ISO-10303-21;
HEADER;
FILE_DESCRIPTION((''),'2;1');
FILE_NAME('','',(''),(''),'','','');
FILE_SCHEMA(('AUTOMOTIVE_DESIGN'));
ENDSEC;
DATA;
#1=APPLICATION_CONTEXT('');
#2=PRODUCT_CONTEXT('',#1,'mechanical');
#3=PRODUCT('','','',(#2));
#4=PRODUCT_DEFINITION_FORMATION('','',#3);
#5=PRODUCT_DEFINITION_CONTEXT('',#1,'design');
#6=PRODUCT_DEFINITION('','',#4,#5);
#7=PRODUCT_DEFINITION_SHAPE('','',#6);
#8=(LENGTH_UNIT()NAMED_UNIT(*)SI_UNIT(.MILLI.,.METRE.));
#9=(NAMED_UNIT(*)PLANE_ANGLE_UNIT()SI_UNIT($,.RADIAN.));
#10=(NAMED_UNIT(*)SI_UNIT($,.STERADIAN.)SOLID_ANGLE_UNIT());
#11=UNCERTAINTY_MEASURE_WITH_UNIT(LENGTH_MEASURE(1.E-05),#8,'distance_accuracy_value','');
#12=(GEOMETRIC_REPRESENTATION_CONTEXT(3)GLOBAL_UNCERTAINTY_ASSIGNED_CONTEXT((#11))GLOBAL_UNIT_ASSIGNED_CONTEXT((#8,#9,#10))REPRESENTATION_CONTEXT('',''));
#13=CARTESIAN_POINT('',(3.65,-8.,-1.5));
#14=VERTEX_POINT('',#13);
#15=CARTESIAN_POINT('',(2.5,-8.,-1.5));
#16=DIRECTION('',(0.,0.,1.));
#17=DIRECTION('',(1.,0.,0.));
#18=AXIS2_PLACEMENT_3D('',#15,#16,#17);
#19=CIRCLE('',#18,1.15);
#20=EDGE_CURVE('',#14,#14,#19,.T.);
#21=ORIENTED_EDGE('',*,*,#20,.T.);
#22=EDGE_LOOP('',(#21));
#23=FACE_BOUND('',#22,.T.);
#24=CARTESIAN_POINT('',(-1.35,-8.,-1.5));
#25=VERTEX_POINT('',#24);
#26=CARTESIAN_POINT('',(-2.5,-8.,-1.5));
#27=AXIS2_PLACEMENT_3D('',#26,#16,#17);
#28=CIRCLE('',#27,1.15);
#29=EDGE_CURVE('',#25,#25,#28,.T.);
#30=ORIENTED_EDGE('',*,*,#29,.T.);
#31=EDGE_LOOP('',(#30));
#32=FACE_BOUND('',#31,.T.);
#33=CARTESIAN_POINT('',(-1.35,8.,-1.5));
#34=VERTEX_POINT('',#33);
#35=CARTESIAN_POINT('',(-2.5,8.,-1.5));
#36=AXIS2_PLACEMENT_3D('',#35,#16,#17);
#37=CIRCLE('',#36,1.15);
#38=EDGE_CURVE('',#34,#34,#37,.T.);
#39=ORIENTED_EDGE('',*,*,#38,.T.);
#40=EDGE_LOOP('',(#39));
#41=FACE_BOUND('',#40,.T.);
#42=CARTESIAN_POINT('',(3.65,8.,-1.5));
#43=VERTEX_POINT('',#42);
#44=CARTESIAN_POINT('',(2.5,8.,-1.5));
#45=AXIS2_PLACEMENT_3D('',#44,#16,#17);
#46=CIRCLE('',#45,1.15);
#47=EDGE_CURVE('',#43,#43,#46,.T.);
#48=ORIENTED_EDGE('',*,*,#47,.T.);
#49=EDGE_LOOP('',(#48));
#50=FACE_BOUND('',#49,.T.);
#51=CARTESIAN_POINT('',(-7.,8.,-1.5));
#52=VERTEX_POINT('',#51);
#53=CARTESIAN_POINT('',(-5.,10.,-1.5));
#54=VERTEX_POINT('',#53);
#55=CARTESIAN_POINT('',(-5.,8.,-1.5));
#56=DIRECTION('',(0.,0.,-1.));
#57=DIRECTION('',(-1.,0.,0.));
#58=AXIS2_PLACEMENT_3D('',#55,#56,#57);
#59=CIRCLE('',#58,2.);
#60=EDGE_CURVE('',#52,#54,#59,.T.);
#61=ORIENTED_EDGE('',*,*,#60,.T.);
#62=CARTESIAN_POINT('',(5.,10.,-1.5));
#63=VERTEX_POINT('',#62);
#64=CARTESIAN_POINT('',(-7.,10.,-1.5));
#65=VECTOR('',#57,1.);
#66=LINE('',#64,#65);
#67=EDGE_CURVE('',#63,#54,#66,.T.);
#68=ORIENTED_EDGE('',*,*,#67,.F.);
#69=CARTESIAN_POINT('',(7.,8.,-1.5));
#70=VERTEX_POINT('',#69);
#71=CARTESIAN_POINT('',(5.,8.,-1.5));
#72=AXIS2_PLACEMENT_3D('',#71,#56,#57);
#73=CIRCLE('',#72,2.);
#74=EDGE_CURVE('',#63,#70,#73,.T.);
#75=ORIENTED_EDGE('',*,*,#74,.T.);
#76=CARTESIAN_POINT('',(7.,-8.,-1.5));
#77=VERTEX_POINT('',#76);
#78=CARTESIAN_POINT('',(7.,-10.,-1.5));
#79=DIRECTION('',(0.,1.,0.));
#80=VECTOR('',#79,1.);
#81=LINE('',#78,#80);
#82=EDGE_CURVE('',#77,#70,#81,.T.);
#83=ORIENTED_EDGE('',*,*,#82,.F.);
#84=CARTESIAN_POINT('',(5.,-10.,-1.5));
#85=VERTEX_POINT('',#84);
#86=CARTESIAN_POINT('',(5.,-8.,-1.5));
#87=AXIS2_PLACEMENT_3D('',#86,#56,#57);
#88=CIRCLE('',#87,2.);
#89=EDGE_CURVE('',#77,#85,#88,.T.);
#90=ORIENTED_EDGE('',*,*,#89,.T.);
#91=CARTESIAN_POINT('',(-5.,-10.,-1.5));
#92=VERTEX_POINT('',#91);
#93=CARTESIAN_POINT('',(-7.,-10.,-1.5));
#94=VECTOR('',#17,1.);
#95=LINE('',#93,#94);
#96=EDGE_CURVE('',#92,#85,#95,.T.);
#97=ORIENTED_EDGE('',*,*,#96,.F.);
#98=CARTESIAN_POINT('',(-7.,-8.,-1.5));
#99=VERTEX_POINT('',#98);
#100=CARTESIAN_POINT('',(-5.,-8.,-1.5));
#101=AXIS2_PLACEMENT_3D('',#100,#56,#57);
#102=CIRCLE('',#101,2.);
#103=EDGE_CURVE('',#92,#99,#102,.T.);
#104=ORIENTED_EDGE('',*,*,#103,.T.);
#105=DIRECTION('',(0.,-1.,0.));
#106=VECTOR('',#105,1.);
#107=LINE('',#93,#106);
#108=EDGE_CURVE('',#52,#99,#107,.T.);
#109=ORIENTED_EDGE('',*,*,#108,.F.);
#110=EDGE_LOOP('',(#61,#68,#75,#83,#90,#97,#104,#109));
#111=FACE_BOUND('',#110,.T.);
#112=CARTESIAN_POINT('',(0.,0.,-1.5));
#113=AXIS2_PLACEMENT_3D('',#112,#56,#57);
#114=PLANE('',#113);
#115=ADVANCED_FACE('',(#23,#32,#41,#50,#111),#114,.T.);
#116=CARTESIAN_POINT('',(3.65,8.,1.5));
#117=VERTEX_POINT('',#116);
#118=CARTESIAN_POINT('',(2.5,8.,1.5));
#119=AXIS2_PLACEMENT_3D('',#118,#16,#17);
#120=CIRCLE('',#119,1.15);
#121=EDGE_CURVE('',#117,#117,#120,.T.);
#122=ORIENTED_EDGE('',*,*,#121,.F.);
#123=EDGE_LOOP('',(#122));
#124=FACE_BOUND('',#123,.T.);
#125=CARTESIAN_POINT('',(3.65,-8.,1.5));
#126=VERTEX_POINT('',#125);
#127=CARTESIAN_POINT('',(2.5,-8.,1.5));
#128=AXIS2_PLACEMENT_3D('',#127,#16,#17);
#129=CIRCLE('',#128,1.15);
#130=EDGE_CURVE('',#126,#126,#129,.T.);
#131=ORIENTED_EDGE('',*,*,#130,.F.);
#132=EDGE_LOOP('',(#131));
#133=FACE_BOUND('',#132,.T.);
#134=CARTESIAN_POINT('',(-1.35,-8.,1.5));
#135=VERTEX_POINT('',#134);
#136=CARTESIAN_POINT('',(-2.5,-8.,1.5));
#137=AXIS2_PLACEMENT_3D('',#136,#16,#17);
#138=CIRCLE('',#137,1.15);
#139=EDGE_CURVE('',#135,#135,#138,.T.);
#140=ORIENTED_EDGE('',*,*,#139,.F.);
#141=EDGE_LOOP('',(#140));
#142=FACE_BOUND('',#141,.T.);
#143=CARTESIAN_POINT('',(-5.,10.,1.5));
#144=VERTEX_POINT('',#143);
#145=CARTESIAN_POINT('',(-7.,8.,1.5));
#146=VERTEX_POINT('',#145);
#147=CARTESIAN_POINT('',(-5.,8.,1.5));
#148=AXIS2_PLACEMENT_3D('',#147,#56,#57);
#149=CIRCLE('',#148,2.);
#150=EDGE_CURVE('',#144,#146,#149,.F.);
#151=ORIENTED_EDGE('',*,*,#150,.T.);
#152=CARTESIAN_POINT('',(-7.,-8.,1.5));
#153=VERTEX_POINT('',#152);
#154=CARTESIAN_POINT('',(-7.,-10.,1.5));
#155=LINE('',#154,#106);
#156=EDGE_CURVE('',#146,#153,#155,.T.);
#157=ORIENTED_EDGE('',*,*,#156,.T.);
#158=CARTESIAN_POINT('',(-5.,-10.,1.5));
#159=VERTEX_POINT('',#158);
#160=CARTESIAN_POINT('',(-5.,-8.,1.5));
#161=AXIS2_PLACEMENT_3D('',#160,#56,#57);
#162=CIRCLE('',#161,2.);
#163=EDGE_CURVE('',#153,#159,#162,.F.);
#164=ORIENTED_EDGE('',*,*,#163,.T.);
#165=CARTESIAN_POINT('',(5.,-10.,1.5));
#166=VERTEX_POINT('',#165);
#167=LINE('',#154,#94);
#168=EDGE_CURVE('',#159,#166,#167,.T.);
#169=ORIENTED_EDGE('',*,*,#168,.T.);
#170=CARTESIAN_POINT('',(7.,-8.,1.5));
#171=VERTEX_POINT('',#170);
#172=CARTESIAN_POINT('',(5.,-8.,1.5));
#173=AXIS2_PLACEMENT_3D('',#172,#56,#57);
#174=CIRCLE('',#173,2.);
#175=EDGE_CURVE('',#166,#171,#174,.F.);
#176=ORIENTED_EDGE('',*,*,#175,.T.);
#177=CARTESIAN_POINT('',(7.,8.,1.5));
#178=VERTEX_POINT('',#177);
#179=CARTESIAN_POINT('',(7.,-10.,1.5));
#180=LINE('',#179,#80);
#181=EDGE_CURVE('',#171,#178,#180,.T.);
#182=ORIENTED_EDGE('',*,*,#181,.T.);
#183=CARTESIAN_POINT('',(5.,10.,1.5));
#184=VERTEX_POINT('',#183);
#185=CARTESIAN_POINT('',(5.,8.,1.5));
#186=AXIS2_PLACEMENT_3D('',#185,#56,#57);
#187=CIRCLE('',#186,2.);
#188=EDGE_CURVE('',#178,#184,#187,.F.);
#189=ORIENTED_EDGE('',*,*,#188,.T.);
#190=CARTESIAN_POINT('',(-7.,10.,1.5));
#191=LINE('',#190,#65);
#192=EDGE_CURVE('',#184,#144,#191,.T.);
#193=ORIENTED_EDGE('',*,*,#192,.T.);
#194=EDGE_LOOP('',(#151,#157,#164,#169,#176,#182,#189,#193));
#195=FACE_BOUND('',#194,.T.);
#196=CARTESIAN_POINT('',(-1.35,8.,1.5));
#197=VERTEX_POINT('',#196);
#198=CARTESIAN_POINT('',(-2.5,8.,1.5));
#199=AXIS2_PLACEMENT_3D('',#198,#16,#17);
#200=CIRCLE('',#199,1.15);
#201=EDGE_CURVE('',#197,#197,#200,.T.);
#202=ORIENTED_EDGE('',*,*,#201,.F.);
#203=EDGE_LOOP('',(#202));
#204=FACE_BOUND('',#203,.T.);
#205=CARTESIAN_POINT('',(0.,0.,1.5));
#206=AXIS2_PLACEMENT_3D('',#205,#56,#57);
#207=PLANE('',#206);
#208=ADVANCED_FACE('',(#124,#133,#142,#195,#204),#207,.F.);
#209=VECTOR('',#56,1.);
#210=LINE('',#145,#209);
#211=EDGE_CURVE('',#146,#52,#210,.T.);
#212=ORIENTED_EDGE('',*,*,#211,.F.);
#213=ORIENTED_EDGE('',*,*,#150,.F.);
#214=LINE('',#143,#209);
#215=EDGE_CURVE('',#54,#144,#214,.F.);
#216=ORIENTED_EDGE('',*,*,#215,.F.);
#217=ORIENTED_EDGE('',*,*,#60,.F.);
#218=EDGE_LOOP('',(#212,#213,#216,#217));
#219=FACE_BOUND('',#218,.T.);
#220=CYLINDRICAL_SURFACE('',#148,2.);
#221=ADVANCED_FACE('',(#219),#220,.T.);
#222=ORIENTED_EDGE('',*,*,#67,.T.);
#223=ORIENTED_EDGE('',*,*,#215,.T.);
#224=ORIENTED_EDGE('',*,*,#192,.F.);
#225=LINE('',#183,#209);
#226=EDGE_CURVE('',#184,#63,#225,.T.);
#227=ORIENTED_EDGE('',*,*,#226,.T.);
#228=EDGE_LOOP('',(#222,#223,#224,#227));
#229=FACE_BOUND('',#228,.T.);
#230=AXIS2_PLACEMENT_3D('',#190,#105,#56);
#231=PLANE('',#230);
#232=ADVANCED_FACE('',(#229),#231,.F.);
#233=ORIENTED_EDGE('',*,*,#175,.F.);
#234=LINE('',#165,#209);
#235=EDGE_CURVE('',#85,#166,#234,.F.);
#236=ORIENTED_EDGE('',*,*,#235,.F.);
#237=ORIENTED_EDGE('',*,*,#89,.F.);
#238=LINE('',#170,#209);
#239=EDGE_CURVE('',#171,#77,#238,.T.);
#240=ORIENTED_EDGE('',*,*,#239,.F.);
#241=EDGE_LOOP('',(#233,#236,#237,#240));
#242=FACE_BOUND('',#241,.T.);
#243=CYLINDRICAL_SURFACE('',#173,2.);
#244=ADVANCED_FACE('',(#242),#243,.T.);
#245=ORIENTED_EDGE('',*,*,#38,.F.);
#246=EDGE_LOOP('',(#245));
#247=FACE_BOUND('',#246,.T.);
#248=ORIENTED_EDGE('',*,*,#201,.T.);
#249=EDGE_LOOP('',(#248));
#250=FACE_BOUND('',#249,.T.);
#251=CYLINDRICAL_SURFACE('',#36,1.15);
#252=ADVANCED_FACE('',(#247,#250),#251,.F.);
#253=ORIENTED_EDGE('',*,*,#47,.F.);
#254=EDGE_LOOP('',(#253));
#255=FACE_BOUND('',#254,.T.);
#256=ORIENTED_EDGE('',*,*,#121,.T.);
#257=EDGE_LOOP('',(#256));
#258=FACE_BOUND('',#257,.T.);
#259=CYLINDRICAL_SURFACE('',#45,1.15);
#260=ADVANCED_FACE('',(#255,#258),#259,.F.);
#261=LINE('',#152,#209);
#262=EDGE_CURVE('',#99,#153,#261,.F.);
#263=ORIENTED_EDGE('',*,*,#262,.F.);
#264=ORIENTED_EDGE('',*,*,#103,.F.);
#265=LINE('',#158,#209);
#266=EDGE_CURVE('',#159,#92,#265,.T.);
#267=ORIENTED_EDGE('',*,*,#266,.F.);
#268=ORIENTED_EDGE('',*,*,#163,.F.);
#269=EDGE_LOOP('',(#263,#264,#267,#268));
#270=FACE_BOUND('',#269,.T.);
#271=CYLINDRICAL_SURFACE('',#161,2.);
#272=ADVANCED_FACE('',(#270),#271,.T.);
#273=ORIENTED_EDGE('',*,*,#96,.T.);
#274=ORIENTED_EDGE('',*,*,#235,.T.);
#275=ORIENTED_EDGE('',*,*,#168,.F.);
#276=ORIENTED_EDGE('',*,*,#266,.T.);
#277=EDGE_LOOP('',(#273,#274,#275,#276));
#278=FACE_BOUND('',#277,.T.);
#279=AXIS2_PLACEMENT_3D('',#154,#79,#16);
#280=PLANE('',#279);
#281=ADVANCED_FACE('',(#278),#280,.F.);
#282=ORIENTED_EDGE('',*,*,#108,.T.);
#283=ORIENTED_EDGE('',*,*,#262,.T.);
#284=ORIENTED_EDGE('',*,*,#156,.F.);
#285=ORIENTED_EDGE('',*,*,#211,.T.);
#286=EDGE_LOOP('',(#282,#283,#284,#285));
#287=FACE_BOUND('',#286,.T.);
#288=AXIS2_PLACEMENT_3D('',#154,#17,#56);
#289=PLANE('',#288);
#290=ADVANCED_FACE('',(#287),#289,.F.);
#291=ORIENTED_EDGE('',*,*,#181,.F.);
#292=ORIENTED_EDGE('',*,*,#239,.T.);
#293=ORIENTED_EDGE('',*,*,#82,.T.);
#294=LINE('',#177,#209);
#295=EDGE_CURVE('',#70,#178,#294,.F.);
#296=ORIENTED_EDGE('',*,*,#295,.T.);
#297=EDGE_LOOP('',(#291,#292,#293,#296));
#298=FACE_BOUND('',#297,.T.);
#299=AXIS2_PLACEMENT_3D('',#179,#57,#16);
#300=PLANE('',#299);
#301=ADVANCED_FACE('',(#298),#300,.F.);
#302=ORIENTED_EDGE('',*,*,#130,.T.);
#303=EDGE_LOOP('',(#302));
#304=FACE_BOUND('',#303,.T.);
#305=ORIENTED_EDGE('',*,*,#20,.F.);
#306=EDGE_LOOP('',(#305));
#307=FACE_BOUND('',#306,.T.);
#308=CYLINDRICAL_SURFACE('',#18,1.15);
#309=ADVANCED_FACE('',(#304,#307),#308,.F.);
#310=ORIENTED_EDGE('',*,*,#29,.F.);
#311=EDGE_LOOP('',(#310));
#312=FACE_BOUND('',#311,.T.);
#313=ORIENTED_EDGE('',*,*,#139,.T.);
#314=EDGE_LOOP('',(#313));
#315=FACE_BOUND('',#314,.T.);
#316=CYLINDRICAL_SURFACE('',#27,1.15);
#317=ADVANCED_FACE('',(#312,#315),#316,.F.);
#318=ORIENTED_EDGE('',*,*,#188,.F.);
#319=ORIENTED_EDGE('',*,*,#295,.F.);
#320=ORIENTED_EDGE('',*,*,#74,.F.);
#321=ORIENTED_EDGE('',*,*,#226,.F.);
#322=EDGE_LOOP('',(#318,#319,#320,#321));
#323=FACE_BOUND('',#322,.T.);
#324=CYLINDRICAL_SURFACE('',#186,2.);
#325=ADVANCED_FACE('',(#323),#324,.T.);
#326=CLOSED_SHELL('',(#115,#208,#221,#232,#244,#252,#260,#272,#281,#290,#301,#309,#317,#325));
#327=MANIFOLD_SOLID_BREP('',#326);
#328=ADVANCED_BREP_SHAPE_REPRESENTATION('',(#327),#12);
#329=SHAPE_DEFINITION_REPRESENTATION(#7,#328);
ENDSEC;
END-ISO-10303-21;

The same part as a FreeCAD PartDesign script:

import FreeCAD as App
import Part
import Sketcher

V = App.Vector


def edges_at(feature, points):
    """Names of the edges that pass closest to the given points."""
    edges = feature.Shape.Edges
    near = lambda p: min(range(len(edges)), key=lambda i: edges[i].distToShape(Part.Vertex(*p))[0])
    return sorted({f"Edge{near(p) + 1}" for p in points})

doc = App.newDocument("Part")
body = doc.addObject("PartDesign::Body", "Body")

sketch1 = body.newObject("Sketcher::SketchObject", "Sketch")
sketch1.AttachmentSupport = (doc.getObject("XY_Plane"), [""])
sketch1.MapMode = "FlatFace"
sketch1.addGeometry([
    Part.LineSegment(V(-7, 10, 0), V(-7, -10, 0)),
    Part.LineSegment(V(-7, -10, 0), V(7, -10, 0)),
    Part.LineSegment(V(7, -10, 0), V(7, 10, 0)),
    Part.LineSegment(V(7, 10, 0), V(-7, 10, 0)),
], False)
sketch1.addConstraint([
    Sketcher.Constraint("Coincident", 0, 2, 1, 1),
    Sketcher.Constraint("Coincident", 1, 2, 2, 1),
    Sketcher.Constraint("Coincident", 2, 2, 3, 1),
    Sketcher.Constraint("Coincident", 3, 2, 0, 1),
    Sketcher.Constraint("Vertical", 0),
    Sketcher.Constraint("Horizontal", 1),
    Sketcher.Constraint("Vertical", 2),
    Sketcher.Constraint("Horizontal", 3),
    Sketcher.Constraint("Symmetric", 0, 2, 2, 2, -1, 1),
    Sketcher.Constraint("DistanceX", 1, 1, 1, 2, 14.0),
    Sketcher.Constraint("DistanceY", 0, 2, 0, 1, 20.0),
])
pad1 = body.newObject("PartDesign::Pad", "Pad")
pad1.Profile = sketch1
pad1.Length = 3
pad1.Midplane = True

sketch2 = body.newObject("Sketcher::SketchObject", "Sketch001")
sketch2.AttachmentSupport = (doc.getObject("XY_Plane"), [""])
sketch2.MapMode = "FlatFace"
sketch2.AttachmentOffset = App.Placement(V(0, 0, 1.5), App.Rotation())
sketch2.addGeometry([
    Part.Circle(V(-2.5, 8, 0), V(0, 0, 1), 1.15),
    Part.Circle(V(2.5, 8, 0), V(0, 0, 1), 1.15),
    Part.Circle(V(-2.5, -8, 0), V(0, 0, 1), 1.15),
    Part.Circle(V(2.5, -8, 0), V(0, 0, 1), 1.15),
], False)
sketch2.addConstraint([
    Sketcher.Constraint("Equal", 0, 1),
    Sketcher.Constraint("Equal", 1, 2),
    Sketcher.Constraint("Equal", 2, 3),
    Sketcher.Constraint("Symmetric", 1, 3, 2, 3, -1, 1),
    Sketcher.Constraint("Symmetric", 0, 3, 3, 3, -1, 1),
    Sketcher.Constraint("Symmetric", 0, 3, 1, 3, -2),
    Sketcher.Constraint("Diameter", 0, 2.3),
    Sketcher.Constraint("DistanceY", -1, 1, 0, 3, 8.0),
    Sketcher.Constraint("DistanceX", 0, 3, 1, 3, 5.0),
])
pocket1 = body.newObject("PartDesign::Pocket", "Pocket")
pocket1.Profile = sketch2
pocket1.Type = "ThroughAll"
doc.recompute()

fillet = body.newObject("PartDesign::Fillet", "Fillet")
fillet.Base = (pocket1, edges_at(pocket1, [
    (7, -10, 0),
    (-7, -10, 0),
    (-7, 10, 0),
    (7, 10, 0),
]))
fillet.Radius = 2

doc.recompute()
